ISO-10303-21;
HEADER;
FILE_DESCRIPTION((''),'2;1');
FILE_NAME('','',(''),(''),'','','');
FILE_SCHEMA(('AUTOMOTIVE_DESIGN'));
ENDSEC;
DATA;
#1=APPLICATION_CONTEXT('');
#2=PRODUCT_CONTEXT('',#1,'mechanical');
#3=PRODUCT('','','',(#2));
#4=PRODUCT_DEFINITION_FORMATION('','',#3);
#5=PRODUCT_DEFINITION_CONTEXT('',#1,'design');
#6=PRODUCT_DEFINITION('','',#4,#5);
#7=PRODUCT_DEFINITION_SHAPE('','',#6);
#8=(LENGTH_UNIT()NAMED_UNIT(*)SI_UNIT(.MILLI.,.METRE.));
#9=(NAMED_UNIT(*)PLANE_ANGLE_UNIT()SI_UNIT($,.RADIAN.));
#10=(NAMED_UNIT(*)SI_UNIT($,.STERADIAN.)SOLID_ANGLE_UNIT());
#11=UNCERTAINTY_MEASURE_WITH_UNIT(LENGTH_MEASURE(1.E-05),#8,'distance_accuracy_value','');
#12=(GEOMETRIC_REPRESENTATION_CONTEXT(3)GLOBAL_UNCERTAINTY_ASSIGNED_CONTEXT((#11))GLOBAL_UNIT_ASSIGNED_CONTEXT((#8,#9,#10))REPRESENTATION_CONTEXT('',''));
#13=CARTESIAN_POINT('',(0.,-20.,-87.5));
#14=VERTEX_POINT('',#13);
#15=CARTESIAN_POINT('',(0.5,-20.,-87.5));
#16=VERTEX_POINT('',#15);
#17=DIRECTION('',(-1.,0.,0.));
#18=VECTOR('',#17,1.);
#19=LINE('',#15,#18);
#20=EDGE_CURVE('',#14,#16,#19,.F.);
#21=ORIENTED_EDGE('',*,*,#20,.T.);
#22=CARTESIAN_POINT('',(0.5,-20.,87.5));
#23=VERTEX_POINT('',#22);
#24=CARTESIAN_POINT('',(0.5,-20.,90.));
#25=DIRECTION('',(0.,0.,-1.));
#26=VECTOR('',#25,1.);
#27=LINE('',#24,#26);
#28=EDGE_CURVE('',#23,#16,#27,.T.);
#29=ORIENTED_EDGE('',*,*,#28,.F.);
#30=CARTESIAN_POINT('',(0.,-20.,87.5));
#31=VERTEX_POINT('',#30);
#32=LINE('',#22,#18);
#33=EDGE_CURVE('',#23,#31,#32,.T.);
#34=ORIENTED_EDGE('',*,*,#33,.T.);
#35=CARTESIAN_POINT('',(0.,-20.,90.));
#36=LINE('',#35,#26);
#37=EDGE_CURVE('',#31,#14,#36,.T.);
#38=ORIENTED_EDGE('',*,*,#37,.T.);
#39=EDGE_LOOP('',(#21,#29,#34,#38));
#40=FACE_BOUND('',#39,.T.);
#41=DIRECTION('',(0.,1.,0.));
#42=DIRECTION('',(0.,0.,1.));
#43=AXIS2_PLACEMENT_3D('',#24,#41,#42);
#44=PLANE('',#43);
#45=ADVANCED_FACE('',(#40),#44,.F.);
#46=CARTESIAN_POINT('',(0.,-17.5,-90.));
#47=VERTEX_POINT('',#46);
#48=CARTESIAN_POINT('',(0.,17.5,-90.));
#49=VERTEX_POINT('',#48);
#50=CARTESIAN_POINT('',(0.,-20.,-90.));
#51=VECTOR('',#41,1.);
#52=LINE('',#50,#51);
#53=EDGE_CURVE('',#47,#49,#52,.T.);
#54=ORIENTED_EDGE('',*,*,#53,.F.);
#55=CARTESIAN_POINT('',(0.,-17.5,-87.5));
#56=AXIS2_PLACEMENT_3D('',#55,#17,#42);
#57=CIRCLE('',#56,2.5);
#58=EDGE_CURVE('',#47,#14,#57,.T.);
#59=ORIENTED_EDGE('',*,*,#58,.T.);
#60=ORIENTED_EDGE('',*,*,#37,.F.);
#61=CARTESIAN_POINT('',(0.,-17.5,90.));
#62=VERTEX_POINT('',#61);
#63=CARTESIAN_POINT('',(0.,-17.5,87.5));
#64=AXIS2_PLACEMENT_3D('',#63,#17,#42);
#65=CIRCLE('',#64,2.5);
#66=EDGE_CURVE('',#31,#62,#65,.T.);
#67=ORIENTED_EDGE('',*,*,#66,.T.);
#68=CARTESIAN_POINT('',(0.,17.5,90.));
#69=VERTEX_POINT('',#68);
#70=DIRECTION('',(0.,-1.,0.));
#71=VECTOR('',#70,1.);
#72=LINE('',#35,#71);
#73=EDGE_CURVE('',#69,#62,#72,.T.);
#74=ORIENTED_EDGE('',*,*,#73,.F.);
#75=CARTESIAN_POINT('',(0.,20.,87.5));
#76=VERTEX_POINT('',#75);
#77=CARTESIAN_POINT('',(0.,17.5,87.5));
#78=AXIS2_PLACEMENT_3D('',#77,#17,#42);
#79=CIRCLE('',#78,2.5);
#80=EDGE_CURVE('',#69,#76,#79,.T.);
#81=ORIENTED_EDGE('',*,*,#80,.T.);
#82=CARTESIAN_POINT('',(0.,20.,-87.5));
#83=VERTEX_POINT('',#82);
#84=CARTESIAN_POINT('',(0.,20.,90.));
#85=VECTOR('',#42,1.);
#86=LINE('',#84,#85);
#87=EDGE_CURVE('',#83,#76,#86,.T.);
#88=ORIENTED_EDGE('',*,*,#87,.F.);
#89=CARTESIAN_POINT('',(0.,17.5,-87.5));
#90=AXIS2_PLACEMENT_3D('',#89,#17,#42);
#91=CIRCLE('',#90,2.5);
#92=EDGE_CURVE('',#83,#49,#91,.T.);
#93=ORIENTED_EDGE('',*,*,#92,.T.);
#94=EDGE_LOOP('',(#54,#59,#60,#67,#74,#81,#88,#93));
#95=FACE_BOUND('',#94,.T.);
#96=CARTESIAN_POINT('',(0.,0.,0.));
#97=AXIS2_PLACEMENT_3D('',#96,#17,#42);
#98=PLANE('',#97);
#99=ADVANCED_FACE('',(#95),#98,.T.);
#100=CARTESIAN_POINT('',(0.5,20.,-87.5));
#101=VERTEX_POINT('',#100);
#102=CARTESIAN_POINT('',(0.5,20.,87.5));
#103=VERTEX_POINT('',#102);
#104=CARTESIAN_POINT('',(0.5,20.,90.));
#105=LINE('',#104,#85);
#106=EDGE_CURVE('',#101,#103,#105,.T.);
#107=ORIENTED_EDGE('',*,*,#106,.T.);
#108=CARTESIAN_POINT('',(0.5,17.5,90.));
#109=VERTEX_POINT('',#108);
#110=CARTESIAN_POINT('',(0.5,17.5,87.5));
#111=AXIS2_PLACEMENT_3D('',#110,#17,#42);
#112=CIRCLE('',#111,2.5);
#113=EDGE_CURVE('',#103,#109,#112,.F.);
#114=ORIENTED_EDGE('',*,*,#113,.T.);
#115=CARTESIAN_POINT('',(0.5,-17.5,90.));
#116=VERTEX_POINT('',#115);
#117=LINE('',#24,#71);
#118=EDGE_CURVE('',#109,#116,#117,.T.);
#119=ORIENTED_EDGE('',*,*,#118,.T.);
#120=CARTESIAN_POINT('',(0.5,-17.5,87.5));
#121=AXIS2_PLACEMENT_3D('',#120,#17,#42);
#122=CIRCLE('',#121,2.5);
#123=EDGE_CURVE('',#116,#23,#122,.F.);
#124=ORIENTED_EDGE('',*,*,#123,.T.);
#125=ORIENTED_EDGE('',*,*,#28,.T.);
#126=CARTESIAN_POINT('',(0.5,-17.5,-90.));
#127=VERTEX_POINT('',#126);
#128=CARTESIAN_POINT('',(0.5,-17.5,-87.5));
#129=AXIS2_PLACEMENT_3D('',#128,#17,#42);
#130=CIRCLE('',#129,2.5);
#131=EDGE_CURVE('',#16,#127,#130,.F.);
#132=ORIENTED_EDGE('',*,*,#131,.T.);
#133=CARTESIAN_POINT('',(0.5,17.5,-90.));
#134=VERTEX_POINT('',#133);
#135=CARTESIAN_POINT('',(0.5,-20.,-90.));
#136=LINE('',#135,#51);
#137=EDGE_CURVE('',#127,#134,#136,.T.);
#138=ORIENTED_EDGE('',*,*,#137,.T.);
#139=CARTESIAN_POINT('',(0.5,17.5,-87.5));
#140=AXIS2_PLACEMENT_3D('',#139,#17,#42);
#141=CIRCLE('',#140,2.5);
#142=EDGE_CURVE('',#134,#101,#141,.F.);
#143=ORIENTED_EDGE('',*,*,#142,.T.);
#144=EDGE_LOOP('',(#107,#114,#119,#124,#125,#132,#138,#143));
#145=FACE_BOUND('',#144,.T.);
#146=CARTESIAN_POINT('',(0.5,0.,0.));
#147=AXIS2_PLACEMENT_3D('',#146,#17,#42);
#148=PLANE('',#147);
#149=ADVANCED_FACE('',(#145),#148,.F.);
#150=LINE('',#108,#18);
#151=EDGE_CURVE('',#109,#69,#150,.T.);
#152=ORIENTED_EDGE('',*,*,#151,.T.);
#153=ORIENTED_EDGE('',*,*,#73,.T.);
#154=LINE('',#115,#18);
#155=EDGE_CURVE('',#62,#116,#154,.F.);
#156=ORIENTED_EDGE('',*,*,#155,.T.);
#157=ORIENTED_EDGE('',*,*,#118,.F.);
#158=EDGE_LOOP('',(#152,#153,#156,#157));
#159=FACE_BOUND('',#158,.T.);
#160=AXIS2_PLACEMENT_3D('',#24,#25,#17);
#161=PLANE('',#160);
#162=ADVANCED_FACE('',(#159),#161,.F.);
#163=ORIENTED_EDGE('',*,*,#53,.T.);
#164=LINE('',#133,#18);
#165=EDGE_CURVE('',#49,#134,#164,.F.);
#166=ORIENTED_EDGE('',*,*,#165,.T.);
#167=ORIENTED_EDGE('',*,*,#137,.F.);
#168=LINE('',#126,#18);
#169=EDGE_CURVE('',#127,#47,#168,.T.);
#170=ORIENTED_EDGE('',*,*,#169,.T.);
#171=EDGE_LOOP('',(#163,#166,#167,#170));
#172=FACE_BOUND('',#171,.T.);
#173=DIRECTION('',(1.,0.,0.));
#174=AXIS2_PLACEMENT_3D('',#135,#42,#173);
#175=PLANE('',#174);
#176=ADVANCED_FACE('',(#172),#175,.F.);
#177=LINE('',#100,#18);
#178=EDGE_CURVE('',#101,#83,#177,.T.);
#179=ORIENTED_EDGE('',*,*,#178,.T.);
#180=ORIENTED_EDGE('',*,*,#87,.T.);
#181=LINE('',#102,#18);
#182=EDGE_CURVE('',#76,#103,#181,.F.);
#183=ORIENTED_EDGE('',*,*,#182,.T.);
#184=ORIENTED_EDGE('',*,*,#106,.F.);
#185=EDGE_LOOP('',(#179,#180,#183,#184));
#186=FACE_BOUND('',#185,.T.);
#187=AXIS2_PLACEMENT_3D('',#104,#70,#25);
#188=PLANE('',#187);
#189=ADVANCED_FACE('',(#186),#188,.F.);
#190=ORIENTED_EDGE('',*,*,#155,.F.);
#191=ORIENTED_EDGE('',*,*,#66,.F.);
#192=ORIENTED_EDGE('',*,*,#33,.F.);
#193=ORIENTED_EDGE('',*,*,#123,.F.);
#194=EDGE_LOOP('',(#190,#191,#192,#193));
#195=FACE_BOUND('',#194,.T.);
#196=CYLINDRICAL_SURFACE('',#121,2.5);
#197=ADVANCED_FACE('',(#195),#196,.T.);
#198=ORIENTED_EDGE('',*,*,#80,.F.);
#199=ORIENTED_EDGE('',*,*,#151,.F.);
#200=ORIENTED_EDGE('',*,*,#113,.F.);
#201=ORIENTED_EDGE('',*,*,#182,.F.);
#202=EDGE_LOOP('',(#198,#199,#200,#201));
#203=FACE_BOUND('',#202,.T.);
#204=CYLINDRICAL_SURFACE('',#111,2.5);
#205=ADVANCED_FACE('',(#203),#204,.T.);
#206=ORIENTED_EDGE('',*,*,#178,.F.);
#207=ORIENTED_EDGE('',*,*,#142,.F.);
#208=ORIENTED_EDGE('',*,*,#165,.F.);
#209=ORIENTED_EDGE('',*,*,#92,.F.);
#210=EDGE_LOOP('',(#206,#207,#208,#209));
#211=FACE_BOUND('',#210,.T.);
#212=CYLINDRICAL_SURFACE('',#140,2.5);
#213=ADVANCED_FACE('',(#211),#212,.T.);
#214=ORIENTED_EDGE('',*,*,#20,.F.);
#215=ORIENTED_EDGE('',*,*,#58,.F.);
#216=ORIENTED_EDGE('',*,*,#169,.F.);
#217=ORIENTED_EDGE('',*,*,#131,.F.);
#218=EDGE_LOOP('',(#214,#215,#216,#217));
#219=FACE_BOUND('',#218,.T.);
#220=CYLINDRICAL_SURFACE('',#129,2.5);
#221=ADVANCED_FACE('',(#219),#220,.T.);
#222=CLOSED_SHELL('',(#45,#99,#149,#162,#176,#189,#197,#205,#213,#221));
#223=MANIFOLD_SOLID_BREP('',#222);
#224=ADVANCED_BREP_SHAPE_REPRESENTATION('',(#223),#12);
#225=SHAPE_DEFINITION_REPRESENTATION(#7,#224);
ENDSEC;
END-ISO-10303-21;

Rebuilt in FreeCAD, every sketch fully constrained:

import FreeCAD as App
import Part
import Sketcher
Q = App.Units.Quantity


def edges_at(feature, points):
    """Names of the edges that pass closest to the given points."""
    edges = feature.Shape.Edges
    near = lambda p: min(range(len(edges)), key=lambda i: edges[i].distToShape(Part.Vertex(*p))[0])
    return sorted({f"Edge{near(p) + 1}" for p in points})

doc = App.newDocument("Part")
body = doc.addObject("PartDesign::Body", "Body")

sketch1 = body.newObject("Sketcher::SketchObject", "Sketch")
sketch1.AttachmentSupport = (doc.getObject("YZ_Plane"), [""])
sketch1.MapMode = "FlatFace"
sketch1.addGeometry([
    Part.LineSegment(App.Vector(20, 90, 0), App.Vector(-20, 90, 0)),
    Part.LineSegment(App.Vector(-20, 90, 0), App.Vector(-20, -90, 0)),
    Part.LineSegment(App.Vector(-20, -90, 0), App.Vector(20, -90, 0)),
    Part.LineSegment(App.Vector(20, -90, 0), App.Vector(20, 90, 0)),
], False)
sketch1.addConstraint([
    Sketcher.Constraint("Coincident", 0, 2, 1, 1),
    Sketcher.Constraint("Coincident", 1, 2, 2, 1),
    Sketcher.Constraint("Coincident", 2, 2, 3, 1),
    Sketcher.Constraint("Coincident", 3, 2, 0, 1),
    Sketcher.Constraint("Horizontal", 0),
    Sketcher.Constraint("Vertical", 1),
    Sketcher.Constraint("Horizontal", 2),
    Sketcher.Constraint("Vertical", 3),
    Sketcher.Constraint("Symmetric", 0, 2, 2, 2, -1, 1),
    Sketcher.Constraint("DistanceX", 0, 2, 0, 1, Q("40 mm")),
    Sketcher.Constraint("DistanceY", 1, 2, 1, 1, Q("180 mm")),
])
pad1 = body.newObject("PartDesign::Pad", "Pad")
pad1.Profile = sketch1
pad1.Length = 0.5
doc.recompute()

fillet = body.newObject("PartDesign::Fillet", "Fillet")
fillet.Base = (pad1, edges_at(pad1, [
    (0.25, -20, -90),
    (0.25, -20, 90),
    (0.25, 20, 90),
    (0.25, 20, -90),
]))
fillet.Radius = 2.5

doc.recompute()
